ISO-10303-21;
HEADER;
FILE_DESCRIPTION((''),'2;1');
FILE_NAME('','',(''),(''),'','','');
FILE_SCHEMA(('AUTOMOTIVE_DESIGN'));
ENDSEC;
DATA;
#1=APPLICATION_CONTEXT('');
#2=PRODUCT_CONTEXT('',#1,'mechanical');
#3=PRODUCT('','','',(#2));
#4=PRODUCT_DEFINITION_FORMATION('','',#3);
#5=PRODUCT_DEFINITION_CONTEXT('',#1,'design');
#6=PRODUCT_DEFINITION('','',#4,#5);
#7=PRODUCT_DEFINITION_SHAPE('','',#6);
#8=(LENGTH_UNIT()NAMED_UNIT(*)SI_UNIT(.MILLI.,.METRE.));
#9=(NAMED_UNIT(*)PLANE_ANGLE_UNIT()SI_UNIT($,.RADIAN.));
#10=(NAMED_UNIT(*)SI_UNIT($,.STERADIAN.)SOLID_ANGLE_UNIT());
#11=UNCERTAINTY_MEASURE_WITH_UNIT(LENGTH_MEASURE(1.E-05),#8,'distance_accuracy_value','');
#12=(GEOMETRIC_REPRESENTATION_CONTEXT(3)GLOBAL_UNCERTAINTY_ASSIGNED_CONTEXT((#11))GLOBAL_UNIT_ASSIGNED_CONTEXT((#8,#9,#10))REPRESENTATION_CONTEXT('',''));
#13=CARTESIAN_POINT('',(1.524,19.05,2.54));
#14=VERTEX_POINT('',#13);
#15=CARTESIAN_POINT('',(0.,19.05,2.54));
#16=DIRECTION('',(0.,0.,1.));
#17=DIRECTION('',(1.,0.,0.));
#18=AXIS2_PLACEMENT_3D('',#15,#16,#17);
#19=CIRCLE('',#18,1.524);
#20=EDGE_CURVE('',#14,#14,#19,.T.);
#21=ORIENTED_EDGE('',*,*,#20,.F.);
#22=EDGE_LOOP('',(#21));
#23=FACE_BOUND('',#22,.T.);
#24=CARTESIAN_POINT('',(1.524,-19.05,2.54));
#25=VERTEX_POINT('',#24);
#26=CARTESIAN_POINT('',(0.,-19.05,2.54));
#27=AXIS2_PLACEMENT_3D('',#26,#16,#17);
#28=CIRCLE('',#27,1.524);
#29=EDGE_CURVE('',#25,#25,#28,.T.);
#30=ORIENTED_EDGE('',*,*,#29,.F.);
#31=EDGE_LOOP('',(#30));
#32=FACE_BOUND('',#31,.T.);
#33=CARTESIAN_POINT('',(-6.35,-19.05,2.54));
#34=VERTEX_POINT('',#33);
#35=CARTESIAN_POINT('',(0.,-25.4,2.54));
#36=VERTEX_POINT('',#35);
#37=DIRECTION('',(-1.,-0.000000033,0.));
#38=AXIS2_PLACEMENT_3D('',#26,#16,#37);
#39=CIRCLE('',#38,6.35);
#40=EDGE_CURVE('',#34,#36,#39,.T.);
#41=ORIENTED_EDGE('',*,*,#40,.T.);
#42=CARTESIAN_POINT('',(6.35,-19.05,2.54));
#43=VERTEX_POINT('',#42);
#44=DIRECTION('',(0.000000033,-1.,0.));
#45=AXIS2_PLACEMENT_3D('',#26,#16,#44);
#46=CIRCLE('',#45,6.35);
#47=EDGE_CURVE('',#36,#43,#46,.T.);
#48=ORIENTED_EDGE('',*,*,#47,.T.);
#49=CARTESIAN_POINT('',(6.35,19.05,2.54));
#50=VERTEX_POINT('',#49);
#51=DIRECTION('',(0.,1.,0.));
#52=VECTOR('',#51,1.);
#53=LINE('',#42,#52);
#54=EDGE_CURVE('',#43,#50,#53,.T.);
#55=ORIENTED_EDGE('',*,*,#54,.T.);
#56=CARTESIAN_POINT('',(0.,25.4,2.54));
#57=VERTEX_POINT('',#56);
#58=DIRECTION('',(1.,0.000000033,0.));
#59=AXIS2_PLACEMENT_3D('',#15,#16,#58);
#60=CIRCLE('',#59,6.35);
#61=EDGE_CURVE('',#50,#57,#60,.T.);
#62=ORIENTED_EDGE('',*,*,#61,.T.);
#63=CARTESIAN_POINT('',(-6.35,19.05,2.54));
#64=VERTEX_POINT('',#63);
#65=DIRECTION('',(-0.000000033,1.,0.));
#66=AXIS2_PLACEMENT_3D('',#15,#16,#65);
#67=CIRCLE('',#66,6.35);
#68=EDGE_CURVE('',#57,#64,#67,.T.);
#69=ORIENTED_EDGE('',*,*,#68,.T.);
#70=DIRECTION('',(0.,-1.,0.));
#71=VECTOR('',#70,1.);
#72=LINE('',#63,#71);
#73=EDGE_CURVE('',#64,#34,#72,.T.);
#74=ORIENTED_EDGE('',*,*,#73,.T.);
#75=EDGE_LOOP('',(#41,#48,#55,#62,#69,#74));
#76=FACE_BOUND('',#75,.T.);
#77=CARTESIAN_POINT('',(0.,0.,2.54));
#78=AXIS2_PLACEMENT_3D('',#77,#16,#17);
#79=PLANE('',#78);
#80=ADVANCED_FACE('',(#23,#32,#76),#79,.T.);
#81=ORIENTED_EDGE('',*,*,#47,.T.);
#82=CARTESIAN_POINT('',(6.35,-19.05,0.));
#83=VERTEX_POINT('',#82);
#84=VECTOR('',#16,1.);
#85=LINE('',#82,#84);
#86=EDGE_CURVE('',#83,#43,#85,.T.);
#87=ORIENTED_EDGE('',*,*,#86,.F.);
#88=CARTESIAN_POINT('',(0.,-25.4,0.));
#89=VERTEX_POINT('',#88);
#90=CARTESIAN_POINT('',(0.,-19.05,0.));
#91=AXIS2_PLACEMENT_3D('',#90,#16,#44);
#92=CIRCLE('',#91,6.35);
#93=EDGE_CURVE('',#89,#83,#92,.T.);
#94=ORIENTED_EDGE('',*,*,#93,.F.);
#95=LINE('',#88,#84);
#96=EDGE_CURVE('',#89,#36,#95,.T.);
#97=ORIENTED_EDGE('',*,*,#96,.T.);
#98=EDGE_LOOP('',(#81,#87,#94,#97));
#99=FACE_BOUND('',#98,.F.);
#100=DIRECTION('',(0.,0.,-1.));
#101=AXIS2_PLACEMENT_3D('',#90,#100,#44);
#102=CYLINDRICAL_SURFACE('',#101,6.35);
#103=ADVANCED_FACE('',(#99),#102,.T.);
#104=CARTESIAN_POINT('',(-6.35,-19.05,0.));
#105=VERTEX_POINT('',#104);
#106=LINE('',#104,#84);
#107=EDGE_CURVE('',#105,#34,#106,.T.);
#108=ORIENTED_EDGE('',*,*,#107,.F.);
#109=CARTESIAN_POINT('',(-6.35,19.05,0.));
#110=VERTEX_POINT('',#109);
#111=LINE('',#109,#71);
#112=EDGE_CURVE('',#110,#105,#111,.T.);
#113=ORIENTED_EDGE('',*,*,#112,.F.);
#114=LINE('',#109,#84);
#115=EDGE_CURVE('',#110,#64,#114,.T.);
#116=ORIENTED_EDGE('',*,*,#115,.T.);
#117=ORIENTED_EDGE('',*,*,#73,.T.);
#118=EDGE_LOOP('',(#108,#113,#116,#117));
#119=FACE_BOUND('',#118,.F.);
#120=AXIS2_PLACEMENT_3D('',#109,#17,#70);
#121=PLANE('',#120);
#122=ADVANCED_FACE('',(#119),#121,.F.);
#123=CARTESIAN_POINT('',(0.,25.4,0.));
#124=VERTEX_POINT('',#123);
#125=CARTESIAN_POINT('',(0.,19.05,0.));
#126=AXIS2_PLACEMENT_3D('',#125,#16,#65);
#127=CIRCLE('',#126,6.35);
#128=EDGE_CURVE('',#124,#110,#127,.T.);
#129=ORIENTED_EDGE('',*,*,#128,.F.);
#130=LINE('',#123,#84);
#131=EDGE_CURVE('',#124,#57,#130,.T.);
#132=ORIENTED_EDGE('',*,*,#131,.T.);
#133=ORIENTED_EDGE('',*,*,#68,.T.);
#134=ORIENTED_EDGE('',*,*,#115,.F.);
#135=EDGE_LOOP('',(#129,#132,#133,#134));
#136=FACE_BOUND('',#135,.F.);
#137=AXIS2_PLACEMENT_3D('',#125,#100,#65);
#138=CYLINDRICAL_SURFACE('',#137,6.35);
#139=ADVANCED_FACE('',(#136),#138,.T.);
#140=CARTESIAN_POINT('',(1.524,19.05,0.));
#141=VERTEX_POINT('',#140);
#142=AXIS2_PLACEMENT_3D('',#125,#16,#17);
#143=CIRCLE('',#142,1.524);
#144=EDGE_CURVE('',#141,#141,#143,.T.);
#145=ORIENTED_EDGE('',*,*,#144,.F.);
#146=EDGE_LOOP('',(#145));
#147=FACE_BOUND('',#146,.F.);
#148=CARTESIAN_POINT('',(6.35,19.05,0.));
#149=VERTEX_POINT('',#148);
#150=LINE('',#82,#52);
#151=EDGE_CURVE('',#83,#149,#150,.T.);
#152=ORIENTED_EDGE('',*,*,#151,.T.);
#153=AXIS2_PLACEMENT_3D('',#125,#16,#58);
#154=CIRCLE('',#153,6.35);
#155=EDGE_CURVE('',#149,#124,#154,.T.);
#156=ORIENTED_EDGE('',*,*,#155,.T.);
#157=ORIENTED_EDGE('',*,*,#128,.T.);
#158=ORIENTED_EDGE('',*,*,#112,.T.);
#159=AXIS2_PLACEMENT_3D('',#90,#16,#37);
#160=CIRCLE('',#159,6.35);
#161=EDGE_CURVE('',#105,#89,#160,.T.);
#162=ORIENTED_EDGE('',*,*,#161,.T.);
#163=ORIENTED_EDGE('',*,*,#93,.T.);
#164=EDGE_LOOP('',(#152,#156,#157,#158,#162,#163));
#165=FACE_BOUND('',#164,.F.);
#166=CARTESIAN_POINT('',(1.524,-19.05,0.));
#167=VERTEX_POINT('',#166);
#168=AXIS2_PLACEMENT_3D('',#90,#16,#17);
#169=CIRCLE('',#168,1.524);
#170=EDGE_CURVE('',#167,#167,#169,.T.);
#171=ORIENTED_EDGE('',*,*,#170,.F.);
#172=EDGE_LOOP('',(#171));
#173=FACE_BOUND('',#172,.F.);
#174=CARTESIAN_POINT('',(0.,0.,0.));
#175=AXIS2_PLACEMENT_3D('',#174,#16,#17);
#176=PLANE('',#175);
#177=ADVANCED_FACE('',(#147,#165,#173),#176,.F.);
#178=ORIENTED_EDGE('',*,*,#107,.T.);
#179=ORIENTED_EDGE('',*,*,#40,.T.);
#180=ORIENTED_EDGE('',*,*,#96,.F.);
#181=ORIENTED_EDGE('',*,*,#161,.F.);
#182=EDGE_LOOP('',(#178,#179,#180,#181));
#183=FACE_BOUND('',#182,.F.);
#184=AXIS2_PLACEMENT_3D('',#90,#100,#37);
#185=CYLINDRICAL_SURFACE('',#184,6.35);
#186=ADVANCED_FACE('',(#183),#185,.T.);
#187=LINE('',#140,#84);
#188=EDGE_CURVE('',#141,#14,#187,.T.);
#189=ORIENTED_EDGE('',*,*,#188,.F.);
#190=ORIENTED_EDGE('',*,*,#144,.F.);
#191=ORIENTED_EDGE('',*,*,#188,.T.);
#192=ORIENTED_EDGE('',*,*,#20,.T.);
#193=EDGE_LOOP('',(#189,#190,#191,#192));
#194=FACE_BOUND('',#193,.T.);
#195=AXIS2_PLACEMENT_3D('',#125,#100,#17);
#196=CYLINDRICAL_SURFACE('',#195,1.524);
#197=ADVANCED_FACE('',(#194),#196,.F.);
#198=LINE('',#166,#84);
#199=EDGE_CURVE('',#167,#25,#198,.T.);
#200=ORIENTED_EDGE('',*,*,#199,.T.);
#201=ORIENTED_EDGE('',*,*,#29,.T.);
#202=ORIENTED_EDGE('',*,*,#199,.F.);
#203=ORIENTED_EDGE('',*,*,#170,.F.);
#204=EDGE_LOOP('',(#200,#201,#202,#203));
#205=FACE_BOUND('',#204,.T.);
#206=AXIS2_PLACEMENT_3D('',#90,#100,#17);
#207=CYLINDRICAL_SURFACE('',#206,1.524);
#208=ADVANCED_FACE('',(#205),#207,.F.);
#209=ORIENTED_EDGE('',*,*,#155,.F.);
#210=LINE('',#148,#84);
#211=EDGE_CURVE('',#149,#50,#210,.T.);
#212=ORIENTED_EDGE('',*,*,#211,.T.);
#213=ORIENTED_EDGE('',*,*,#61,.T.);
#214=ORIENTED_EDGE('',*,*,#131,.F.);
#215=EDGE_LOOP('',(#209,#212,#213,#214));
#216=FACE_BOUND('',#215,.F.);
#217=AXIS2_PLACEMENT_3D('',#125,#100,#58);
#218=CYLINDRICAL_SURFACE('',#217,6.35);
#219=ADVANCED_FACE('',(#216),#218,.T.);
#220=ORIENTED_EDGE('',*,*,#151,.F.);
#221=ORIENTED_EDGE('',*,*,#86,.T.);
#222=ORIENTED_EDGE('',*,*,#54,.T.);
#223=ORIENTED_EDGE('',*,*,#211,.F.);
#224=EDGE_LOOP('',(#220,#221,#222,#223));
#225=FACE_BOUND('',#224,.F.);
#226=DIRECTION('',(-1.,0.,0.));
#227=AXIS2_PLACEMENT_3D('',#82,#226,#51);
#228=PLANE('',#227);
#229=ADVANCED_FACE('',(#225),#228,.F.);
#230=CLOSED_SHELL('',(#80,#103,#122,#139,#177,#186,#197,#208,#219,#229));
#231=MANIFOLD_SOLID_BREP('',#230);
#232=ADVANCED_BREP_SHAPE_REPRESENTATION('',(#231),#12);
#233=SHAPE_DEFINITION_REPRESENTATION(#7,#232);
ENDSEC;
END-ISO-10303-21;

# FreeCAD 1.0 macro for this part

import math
import FreeCAD as App
import Part
import Sketcher
from FreeCAD import Vector
Q = App.Units.Quantity

doc = App.newDocument("Part")
body = doc.addObject("PartDesign::Body", "Body")

# Sketch on XY plane
sketch1 = doc.addObject("Sketcher::SketchObject", "Sketch")
body.addObject(sketch1)
sketch1.AttachmentSupport = (doc.XY_Plane, [""])
sketch1.MapMode = "FlatFace"
sketch1.addGeometry([
    Part.LineSegment(Vector(6.35, -19.05, 0), Vector(6.35, 19.05, 0)),  # 0
    Part.ArcOfCircle(Part.Circle(Vector(0, 19.05, 0), Vector(0, 0, 1), 6.35), math.radians(0.000002), math.radians(89.999998)),  # 1
    Part.ArcOfCircle(Part.Circle(Vector(0, 19.05, 0), Vector(0, 0, 1), 6.35), math.radians(90.000002), math.radians(179.999998)),  # 2
    Part.LineSegment(Vector(-6.35, 19.05, 0), Vector(-6.35, -19.05, 0)),  # 3
    Part.ArcOfCircle(Part.Circle(Vector(0, -19.05, 0), Vector(0, 0, 1), 6.35), math.radians(-179.999998), math.radians(-90.000002)),  # 4
    Part.ArcOfCircle(Part.Circle(Vector(0, -19.05, 0), Vector(0, 0, 1), 6.35), math.radians(-89.999998), math.radians(-0.000002)),  # 5
    Part.Circle(Vector(0, -19.05, 0), Vector(0, 0, 1), 1.524),  # 6
    Part.Circle(Vector(0, 19.05, 0), Vector(0, 0, 1), 1.524),  # 7
], False)
sketch1.addConstraint([
    Sketcher.Constraint("Tangent", 0, 2, 1, 1),
    Sketcher.Constraint("Tangent", 1, 2, 2, 1),
    Sketcher.Constraint("Tangent", 2, 2, 3, 1),
    Sketcher.Constraint("Tangent", 3, 2, 4, 1),
    Sketcher.Constraint("Tangent", 4, 2, 5, 1),
    Sketcher.Constraint("Tangent", 5, 2, 0, 1),
    Sketcher.Constraint("Vertical", 0),
    Sketcher.Constraint("Vertical", 3),
    Sketcher.Constraint("Coincident", 6, 3, 4, 3),
    Sketcher.Constraint("Coincident", 7, 3, 1, 3),
    Sketcher.Constraint("Equal", 1, 2),
    Sketcher.Constraint("Equal", 2, 4),
    Sketcher.Constraint("Equal", 6, 7),
    Sketcher.Constraint("Symmetric", 1, 3, 4, 3, -1, 1),
    Sketcher.Constraint("PointOnObject", 1, 2, -2),
    Sketcher.Constraint("PointOnObject", 4, 2, -2),
    Sketcher.Constraint("Diameter", 6, Q("0.12 in")),
    Sketcher.Constraint("Radius", 1, Q("0.25 in")),
    Sketcher.Constraint("DistanceY", 0, 1, 0, 2, Q("1.5 in")),
])
pad1 = doc.addObject("PartDesign::Pad", "Pad")
body.addObject(pad1)
pad1.Profile = sketch1
pad1.Length = Q("0.1 in")

doc.recompute()
